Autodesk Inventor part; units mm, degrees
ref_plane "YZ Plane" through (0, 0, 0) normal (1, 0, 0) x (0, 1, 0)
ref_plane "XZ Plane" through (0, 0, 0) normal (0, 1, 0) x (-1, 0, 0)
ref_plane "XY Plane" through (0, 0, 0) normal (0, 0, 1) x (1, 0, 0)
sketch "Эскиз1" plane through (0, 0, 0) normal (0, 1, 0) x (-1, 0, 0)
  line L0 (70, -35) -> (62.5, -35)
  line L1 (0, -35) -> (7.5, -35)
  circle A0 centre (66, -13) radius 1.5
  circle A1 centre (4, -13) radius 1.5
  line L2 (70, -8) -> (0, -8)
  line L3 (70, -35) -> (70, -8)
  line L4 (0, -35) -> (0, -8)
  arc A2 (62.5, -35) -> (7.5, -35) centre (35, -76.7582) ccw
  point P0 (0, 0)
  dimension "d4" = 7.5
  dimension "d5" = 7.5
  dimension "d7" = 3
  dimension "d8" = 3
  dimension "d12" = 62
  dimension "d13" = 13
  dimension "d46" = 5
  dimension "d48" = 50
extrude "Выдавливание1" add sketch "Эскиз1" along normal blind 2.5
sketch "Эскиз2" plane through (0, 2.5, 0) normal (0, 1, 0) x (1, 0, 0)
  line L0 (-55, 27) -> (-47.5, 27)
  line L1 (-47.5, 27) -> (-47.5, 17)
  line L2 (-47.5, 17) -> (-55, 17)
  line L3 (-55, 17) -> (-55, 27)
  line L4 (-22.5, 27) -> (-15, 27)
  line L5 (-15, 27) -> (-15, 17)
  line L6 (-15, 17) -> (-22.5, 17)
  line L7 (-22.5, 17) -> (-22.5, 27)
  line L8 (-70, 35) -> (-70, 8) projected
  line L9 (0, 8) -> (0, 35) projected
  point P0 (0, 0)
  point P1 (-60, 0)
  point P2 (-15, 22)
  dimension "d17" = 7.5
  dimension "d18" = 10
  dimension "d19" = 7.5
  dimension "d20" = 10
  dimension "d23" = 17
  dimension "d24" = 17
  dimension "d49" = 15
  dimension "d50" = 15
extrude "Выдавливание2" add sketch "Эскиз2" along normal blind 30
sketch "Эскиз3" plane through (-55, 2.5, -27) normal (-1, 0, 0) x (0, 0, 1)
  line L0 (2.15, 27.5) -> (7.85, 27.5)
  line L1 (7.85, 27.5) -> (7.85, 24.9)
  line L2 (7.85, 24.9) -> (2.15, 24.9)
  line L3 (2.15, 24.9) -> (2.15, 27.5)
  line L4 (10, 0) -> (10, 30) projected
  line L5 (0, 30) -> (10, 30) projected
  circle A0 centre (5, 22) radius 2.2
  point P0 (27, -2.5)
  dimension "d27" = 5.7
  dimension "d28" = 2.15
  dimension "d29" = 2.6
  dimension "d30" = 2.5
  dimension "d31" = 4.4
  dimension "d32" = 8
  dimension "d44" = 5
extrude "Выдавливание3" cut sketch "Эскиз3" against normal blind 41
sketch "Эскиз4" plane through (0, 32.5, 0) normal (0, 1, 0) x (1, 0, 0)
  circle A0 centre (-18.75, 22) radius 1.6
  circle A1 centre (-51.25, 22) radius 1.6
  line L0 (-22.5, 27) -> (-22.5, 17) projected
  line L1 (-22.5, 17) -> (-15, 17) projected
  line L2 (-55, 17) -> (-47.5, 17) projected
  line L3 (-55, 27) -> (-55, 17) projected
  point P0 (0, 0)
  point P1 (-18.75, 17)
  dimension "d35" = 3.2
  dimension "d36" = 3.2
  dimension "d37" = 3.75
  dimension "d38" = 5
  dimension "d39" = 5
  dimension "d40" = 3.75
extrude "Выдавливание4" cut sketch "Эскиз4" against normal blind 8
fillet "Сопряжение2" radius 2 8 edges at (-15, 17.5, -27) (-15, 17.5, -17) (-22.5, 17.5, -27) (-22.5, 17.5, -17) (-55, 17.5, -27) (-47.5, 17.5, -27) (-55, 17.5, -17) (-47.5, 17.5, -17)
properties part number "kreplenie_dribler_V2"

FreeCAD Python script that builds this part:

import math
import FreeCAD as App
import Part
import Sketcher

V = App.Vector
Q = App.Units.Quantity


def edges_at(feature, points):
    """Names of the edges that pass closest to the given points."""
    edges = feature.Shape.Edges
    near = lambda p: min(range(len(edges)), key=lambda i: edges[i].distToShape(Part.Vertex(*p))[0])
    return sorted({f"Edge{near(p) + 1}" for p in points})


def add_polygon(sketch, points):
    """Adds a closed chain of lines whose ends are joined by coincident constraints."""
    first, n = sketch.GeometryCount, len(points)
    for a, b in zip(points, points[1:] + points[:1]):
        sketch.addGeometry(Part.LineSegment(App.Vector(*a, 0), App.Vector(*b, 0)), False)
    for i in range(n):
        sketch.addConstraint(Sketcher.Constraint("Coincident", first + i, 2, first + (i + 1) % n, 1))

doc = App.newDocument("Part")
params = doc.addObject("Spreadsheet::Sheet", "Params")
for row, (alias, value) in enumerate([
    ("sketch1_diameter", "3 mm"),
    ("sketch1_radius", "50 mm"),
    ("sketch1_width", "7.5 mm"),
    ("sketch1_width2", "70 mm"),
    ("sketch1_height", "27 mm"),
    ("pad1_length", "2.5 mm"),
    ("sketch2_height", "10 mm"),
    ("sketch2_width", "7.5 mm"),
    ("pad2_length", "30 mm"),
    ("sketch3_diameter", "4.4 mm"),
    ("sketch3_width", "2.6 mm"),
    ("sketch3_height", "5.7 mm"),
    ("pocket1_length", "41 mm"),
    ("sketch4_diameter", "3.2 mm"),
    ("pocket2_length", "8 mm"),
    ("fillet_radius", "2 mm"),
], start=1):
    params.set(f"A{row}", alias)
    params.set(f"B{row}", "=" + value)
    params.setAlias(f"B{row}", alias)

body = doc.addObject("PartDesign::Body", "Body")

sketch1 = doc.addObject("Sketcher::SketchObject", "Sketch")
body.addObject(sketch1)
sketch1.AttachmentSupport = (doc.XZ_Plane, [""])
sketch1.MapMode = "FlatFace"
sketch1.addGeometry(Part.LineSegment(V(-62.5, -35, 0), V(-70, -35, 0)), False)
sketch1.addGeometry(Part.LineSegment(V(-70, -35, 0), V(-70, -8, 0)), False)
sketch1.addGeometry(Part.LineSegment(V(-70, -8, 0), V(0, -8, 0)), False)
sketch1.addGeometry(Part.LineSegment(V(0, -8, 0), V(0, -35, 0)), False)
sketch1.addGeometry(Part.LineSegment(V(0, -35, 0), V(-7.5, -35, 0)), False)
sketch1.addGeometry(Part.ArcOfCircle(Part.Circle(V(-35, -76.8, 0), V(0, 0, 1), 50), math.radians(57), math.radians(123)), False)
sketch1.addGeometry(Part.Circle(V(-4, -13, 0), V(0, 0, 1), 1.5), False)
sketch1.addGeometry(Part.Circle(V(-66, -13, 0), V(0, 0, 1), 1.5), False)
sketch1.addConstraint(Sketcher.Constraint("Coincident", 0, 2, 1, 1))
sketch1.addConstraint(Sketcher.Constraint("Coincident", 1, 2, 2, 1))
sketch1.addConstraint(Sketcher.Constraint("Coincident", 2, 2, 3, 1))
sketch1.addConstraint(Sketcher.Constraint("Coincident", 3, 2, 4, 1))
sketch1.addConstraint(Sketcher.Constraint("Coincident", 4, 2, 5, 1))
sketch1.addConstraint(Sketcher.Constraint("Coincident", 5, 2, 0, 1))
sketch1.addConstraint(Sketcher.Constraint("Horizontal", 0))
sketch1.addConstraint(Sketcher.Constraint("Vertical", 1))
sketch1.addConstraint(Sketcher.Constraint("Horizontal", 2))
sketch1.addConstraint(Sketcher.Constraint("Vertical", 3))
sketch1.addConstraint(Sketcher.Constraint("Horizontal", 4))
sketch1.addConstraint(Sketcher.Constraint("Equal", 6, 7))
sketch1.addConstraint(Sketcher.Constraint("PointOnObject", 2, 2, -2))
sketch1.addConstraint(Sketcher.Constraint("Horizontal", 6, 3, 7, 3))
sketch1.addConstraint(Sketcher.Constraint("Horizontal", 0, 2, 3, 2))
sketch1.addConstraint(Sketcher.Constraint("Equal", 0, 4))
sketch1.addConstraint(Sketcher.Constraint("Diameter", 6, Q("3 mm")))
sketch1.addConstraint(Sketcher.Constraint("Radius", 5, Q("50 mm")))
sketch1.addConstraint(Sketcher.Constraint("DistanceX", 0, 2, 0, 1, Q("7.5 mm")))
sketch1.addConstraint(Sketcher.Constraint("DistanceY", 6, 3, -1, 1, Q("13 mm")))
sketch1.addConstraint(Sketcher.Constraint("DistanceX", 7, 3, 6, 3, Q("62 mm")))
sketch1.addConstraint(Sketcher.Constraint("DistanceY", 7, 3, 1, 2, Q("5 mm")))
sketch1.addConstraint(Sketcher.Constraint("DistanceX", 2, 1, 2, 2, Q("70 mm")))
sketch1.addConstraint(Sketcher.Constraint("DistanceY", 1, 1, 1, 2, Q("27 mm")))
sketch1.addConstraint(Sketcher.Constraint("DistanceX", 6, 3, -1, 1, Q("4 mm")))
sketch1.setExpression("Constraints[16]", "Params.sketch1_diameter")
sketch1.setExpression("Constraints[17]", "Params.sketch1_radius")
sketch1.setExpression("Constraints[18]", "Params.sketch1_width")
sketch1.setExpression("Constraints[22]", "Params.sketch1_width2")
sketch1.setExpression("Constraints[23]", "Params.sketch1_height")
pad1 = doc.addObject("PartDesign::Pad", "Pad")
body.addObject(pad1)
pad1.Profile = sketch1
pad1.setExpression("Length", "Params.pad1_length")
pad1.Reversed = True

sketch2 = doc.addObject("Sketcher::SketchObject", "Sketch001")
body.addObject(sketch2)
sketch2.AttachmentSupport = (doc.XZ_Plane, [""])
sketch2.MapMode = "FlatFace"
sketch2.AttachmentOffset = App.Placement(V(0, 0, -2.5), App.Rotation())
add_polygon(sketch2, [(-48, -27), (-55, -27), (-55, -17), (-48, -17)])
add_polygon(sketch2, [(-15, -27), (-22, -27), (-22, -17), (-15, -17)])
sketch2.addConstraint(Sketcher.Constraint("Horizontal", 0))
sketch2.addConstraint(Sketcher.Constraint("Vertical", 1))
sketch2.addConstraint(Sketcher.Constraint("Horizontal", 2))
sketch2.addConstraint(Sketcher.Constraint("Vertical", 3))
sketch2.addConstraint(Sketcher.Constraint("Horizontal", 4))
sketch2.addConstraint(Sketcher.Constraint("Vertical", 5))
sketch2.addConstraint(Sketcher.Constraint("Horizontal", 6))
sketch2.addConstraint(Sketcher.Constraint("Vertical", 7))
sketch2.addConstraint(Sketcher.Constraint("Horizontal", 3, 2, 4, 2))
sketch2.addConstraint(Sketcher.Constraint("Horizontal", 2, 2, 5, 2))
sketch2.addConstraint(Sketcher.Constraint("Equal", 2, 4))
sketch2.addConstraint(Sketcher.Constraint("DistanceY", 1, 1, 1, 2, Q("10 mm")))
sketch2.addConstraint(Sketcher.Constraint("DistanceX", 0, 2, 0, 1, Q("7.5 mm")))
sketch2.addConstraint(Sketcher.Constraint("DistanceY", 1, 2, -1, 1, Q("17 mm")))
sketch2.addConstraint(Sketcher.Constraint("DistanceX", 6, 2, -1, 1, Q("15 mm")))
sketch2.addConstraint(Sketcher.Constraint("DistanceX", 0, 2, -1, 1, Q("55 mm")))
sketch2.setExpression("Constraints[19]", "Params.sketch2_height")
sketch2.setExpression("Constraints[20]", "Params.sketch2_width")
pad2 = doc.addObject("PartDesign::Pad", "Pad001")
body.addObject(pad2)
pad2.Profile = sketch2
pad2.setExpression("Length", "Params.pad2_length")
pad2.Reversed = True

sketch3 = doc.addObject("Sketcher::SketchObject", "Sketch002")
body.addObject(sketch3)
sketch3.AttachmentSupport = (doc.YZ_Plane, [""])
sketch3.MapMode = "FlatFace"
sketch3.AttachmentOffset = App.Placement(V(0, 0, -55), App.Rotation())
add_polygon(sketch3, [(30, -19.1), (30, -24.9), (27.4, -24.9), (27.4, -19.1)])
sketch3.addGeometry(Part.Circle(V(24.5, -22, 0), V(0, 0, 1), 2.2), False)
sketch3.addConstraint(Sketcher.Constraint("Vertical", 0))
sketch3.addConstraint(Sketcher.Constraint("Horizontal", 1))
sketch3.addConstraint(Sketcher.Constraint("Vertical", 2))
sketch3.addConstraint(Sketcher.Constraint("Horizontal", 3))
sketch3.addConstraint(Sketcher.Constraint("Diameter", 4, Q("4.4 mm")))
sketch3.addConstraint(Sketcher.Constraint("DistanceX", 1, 2, 1, 1, Q("2.6 mm")))
sketch3.addConstraint(Sketcher.Constraint("DistanceY", 0, 2, 0, 1, Q("5.7 mm")))
sketch3.addConstraint(Sketcher.Constraint("DistanceY", 4, 3, -1, 1, Q("22 mm")))
sketch3.addConstraint(Sketcher.Constraint("DistanceX", -1, 1, 0, 2, Q("30 mm")))
sketch3.addConstraint(Sketcher.Constraint("DistanceX", -1, 1, 4, 3, Q("24.5 mm")))
sketch3.addConstraint(Sketcher.Constraint("DistanceY", 0, 2, -1, 1, Q("24.85 mm")))
sketch3.setExpression("Constraints[8]", "Params.sketch3_diameter")
sketch3.setExpression("Constraints[9]", "Params.sketch3_width")
sketch3.setExpression("Constraints[10]", "Params.sketch3_height")
pocket1 = doc.addObject("PartDesign::Pocket", "Pocket")
body.addObject(pocket1)
pocket1.Profile = sketch3
pocket1.setExpression("Length", "Params.pocket1_length")
pocket1.Reversed = True

sketch4 = doc.addObject("Sketcher::SketchObject", "Sketch003")
body.addObject(sketch4)
sketch4.AttachmentSupport = (doc.XZ_Plane, [""])
sketch4.MapMode = "FlatFace"
sketch4.AttachmentOffset = App.Placement(V(0, 0, -32.5), App.Rotation())
sketch4.addGeometry(Part.Circle(V(-18.8, -22, 0), V(0, 0, 1), 1.6), False)
sketch4.addGeometry(Part.Circle(V(-51.2, -22, 0), V(0, 0, 1), 1.6), False)
sketch4.addConstraint(Sketcher.Constraint("Equal", 0, 1))
sketch4.addConstraint(Sketcher.Constraint("Horizontal", 0, 3, 1, 3))
sketch4.addConstraint(Sketcher.Constraint("Diameter", 0, Q("3.2 mm")))
sketch4.addConstraint(Sketcher.Constraint("DistanceY", 0, 3, -1, 1, Q("22 mm")))
sketch4.addConstraint(Sketcher.Constraint("DistanceX", 1, 3, 0, 3, Q("32.5 mm")))
sketch4.addConstraint(Sketcher.Constraint("DistanceX", 0, 3, -1, 1, Q("18.75 mm")))
sketch4.setExpression("Constraints[2]", "Params.sketch4_diameter")
pocket2 = doc.addObject("PartDesign::Pocket", "Pocket001")
body.addObject(pocket2)
pocket2.Profile = sketch4
pocket2.setExpression("Length", "Params.pocket2_length")
pocket2.Reversed = True
doc.recompute()

fillet = doc.addObject("PartDesign::Fillet", "Fillet")
body.addObject(fillet)
fillet.Base = (pocket2, edges_at(pocket2, [
    (-15, 17.5, -27),
    (-15, 17.5, -17),
    (-22.5, 17.5, -27),
    (-22.5, 17.5, -17),
    (-55, 17.5, -27),
    (-47.5, 17.5, -27),
    (-55, 17.5, -17),
    (-47.5, 17.5, -17),
]))
fillet.setExpression("Radius", "Params.fillet_radius")

doc.recompute()
